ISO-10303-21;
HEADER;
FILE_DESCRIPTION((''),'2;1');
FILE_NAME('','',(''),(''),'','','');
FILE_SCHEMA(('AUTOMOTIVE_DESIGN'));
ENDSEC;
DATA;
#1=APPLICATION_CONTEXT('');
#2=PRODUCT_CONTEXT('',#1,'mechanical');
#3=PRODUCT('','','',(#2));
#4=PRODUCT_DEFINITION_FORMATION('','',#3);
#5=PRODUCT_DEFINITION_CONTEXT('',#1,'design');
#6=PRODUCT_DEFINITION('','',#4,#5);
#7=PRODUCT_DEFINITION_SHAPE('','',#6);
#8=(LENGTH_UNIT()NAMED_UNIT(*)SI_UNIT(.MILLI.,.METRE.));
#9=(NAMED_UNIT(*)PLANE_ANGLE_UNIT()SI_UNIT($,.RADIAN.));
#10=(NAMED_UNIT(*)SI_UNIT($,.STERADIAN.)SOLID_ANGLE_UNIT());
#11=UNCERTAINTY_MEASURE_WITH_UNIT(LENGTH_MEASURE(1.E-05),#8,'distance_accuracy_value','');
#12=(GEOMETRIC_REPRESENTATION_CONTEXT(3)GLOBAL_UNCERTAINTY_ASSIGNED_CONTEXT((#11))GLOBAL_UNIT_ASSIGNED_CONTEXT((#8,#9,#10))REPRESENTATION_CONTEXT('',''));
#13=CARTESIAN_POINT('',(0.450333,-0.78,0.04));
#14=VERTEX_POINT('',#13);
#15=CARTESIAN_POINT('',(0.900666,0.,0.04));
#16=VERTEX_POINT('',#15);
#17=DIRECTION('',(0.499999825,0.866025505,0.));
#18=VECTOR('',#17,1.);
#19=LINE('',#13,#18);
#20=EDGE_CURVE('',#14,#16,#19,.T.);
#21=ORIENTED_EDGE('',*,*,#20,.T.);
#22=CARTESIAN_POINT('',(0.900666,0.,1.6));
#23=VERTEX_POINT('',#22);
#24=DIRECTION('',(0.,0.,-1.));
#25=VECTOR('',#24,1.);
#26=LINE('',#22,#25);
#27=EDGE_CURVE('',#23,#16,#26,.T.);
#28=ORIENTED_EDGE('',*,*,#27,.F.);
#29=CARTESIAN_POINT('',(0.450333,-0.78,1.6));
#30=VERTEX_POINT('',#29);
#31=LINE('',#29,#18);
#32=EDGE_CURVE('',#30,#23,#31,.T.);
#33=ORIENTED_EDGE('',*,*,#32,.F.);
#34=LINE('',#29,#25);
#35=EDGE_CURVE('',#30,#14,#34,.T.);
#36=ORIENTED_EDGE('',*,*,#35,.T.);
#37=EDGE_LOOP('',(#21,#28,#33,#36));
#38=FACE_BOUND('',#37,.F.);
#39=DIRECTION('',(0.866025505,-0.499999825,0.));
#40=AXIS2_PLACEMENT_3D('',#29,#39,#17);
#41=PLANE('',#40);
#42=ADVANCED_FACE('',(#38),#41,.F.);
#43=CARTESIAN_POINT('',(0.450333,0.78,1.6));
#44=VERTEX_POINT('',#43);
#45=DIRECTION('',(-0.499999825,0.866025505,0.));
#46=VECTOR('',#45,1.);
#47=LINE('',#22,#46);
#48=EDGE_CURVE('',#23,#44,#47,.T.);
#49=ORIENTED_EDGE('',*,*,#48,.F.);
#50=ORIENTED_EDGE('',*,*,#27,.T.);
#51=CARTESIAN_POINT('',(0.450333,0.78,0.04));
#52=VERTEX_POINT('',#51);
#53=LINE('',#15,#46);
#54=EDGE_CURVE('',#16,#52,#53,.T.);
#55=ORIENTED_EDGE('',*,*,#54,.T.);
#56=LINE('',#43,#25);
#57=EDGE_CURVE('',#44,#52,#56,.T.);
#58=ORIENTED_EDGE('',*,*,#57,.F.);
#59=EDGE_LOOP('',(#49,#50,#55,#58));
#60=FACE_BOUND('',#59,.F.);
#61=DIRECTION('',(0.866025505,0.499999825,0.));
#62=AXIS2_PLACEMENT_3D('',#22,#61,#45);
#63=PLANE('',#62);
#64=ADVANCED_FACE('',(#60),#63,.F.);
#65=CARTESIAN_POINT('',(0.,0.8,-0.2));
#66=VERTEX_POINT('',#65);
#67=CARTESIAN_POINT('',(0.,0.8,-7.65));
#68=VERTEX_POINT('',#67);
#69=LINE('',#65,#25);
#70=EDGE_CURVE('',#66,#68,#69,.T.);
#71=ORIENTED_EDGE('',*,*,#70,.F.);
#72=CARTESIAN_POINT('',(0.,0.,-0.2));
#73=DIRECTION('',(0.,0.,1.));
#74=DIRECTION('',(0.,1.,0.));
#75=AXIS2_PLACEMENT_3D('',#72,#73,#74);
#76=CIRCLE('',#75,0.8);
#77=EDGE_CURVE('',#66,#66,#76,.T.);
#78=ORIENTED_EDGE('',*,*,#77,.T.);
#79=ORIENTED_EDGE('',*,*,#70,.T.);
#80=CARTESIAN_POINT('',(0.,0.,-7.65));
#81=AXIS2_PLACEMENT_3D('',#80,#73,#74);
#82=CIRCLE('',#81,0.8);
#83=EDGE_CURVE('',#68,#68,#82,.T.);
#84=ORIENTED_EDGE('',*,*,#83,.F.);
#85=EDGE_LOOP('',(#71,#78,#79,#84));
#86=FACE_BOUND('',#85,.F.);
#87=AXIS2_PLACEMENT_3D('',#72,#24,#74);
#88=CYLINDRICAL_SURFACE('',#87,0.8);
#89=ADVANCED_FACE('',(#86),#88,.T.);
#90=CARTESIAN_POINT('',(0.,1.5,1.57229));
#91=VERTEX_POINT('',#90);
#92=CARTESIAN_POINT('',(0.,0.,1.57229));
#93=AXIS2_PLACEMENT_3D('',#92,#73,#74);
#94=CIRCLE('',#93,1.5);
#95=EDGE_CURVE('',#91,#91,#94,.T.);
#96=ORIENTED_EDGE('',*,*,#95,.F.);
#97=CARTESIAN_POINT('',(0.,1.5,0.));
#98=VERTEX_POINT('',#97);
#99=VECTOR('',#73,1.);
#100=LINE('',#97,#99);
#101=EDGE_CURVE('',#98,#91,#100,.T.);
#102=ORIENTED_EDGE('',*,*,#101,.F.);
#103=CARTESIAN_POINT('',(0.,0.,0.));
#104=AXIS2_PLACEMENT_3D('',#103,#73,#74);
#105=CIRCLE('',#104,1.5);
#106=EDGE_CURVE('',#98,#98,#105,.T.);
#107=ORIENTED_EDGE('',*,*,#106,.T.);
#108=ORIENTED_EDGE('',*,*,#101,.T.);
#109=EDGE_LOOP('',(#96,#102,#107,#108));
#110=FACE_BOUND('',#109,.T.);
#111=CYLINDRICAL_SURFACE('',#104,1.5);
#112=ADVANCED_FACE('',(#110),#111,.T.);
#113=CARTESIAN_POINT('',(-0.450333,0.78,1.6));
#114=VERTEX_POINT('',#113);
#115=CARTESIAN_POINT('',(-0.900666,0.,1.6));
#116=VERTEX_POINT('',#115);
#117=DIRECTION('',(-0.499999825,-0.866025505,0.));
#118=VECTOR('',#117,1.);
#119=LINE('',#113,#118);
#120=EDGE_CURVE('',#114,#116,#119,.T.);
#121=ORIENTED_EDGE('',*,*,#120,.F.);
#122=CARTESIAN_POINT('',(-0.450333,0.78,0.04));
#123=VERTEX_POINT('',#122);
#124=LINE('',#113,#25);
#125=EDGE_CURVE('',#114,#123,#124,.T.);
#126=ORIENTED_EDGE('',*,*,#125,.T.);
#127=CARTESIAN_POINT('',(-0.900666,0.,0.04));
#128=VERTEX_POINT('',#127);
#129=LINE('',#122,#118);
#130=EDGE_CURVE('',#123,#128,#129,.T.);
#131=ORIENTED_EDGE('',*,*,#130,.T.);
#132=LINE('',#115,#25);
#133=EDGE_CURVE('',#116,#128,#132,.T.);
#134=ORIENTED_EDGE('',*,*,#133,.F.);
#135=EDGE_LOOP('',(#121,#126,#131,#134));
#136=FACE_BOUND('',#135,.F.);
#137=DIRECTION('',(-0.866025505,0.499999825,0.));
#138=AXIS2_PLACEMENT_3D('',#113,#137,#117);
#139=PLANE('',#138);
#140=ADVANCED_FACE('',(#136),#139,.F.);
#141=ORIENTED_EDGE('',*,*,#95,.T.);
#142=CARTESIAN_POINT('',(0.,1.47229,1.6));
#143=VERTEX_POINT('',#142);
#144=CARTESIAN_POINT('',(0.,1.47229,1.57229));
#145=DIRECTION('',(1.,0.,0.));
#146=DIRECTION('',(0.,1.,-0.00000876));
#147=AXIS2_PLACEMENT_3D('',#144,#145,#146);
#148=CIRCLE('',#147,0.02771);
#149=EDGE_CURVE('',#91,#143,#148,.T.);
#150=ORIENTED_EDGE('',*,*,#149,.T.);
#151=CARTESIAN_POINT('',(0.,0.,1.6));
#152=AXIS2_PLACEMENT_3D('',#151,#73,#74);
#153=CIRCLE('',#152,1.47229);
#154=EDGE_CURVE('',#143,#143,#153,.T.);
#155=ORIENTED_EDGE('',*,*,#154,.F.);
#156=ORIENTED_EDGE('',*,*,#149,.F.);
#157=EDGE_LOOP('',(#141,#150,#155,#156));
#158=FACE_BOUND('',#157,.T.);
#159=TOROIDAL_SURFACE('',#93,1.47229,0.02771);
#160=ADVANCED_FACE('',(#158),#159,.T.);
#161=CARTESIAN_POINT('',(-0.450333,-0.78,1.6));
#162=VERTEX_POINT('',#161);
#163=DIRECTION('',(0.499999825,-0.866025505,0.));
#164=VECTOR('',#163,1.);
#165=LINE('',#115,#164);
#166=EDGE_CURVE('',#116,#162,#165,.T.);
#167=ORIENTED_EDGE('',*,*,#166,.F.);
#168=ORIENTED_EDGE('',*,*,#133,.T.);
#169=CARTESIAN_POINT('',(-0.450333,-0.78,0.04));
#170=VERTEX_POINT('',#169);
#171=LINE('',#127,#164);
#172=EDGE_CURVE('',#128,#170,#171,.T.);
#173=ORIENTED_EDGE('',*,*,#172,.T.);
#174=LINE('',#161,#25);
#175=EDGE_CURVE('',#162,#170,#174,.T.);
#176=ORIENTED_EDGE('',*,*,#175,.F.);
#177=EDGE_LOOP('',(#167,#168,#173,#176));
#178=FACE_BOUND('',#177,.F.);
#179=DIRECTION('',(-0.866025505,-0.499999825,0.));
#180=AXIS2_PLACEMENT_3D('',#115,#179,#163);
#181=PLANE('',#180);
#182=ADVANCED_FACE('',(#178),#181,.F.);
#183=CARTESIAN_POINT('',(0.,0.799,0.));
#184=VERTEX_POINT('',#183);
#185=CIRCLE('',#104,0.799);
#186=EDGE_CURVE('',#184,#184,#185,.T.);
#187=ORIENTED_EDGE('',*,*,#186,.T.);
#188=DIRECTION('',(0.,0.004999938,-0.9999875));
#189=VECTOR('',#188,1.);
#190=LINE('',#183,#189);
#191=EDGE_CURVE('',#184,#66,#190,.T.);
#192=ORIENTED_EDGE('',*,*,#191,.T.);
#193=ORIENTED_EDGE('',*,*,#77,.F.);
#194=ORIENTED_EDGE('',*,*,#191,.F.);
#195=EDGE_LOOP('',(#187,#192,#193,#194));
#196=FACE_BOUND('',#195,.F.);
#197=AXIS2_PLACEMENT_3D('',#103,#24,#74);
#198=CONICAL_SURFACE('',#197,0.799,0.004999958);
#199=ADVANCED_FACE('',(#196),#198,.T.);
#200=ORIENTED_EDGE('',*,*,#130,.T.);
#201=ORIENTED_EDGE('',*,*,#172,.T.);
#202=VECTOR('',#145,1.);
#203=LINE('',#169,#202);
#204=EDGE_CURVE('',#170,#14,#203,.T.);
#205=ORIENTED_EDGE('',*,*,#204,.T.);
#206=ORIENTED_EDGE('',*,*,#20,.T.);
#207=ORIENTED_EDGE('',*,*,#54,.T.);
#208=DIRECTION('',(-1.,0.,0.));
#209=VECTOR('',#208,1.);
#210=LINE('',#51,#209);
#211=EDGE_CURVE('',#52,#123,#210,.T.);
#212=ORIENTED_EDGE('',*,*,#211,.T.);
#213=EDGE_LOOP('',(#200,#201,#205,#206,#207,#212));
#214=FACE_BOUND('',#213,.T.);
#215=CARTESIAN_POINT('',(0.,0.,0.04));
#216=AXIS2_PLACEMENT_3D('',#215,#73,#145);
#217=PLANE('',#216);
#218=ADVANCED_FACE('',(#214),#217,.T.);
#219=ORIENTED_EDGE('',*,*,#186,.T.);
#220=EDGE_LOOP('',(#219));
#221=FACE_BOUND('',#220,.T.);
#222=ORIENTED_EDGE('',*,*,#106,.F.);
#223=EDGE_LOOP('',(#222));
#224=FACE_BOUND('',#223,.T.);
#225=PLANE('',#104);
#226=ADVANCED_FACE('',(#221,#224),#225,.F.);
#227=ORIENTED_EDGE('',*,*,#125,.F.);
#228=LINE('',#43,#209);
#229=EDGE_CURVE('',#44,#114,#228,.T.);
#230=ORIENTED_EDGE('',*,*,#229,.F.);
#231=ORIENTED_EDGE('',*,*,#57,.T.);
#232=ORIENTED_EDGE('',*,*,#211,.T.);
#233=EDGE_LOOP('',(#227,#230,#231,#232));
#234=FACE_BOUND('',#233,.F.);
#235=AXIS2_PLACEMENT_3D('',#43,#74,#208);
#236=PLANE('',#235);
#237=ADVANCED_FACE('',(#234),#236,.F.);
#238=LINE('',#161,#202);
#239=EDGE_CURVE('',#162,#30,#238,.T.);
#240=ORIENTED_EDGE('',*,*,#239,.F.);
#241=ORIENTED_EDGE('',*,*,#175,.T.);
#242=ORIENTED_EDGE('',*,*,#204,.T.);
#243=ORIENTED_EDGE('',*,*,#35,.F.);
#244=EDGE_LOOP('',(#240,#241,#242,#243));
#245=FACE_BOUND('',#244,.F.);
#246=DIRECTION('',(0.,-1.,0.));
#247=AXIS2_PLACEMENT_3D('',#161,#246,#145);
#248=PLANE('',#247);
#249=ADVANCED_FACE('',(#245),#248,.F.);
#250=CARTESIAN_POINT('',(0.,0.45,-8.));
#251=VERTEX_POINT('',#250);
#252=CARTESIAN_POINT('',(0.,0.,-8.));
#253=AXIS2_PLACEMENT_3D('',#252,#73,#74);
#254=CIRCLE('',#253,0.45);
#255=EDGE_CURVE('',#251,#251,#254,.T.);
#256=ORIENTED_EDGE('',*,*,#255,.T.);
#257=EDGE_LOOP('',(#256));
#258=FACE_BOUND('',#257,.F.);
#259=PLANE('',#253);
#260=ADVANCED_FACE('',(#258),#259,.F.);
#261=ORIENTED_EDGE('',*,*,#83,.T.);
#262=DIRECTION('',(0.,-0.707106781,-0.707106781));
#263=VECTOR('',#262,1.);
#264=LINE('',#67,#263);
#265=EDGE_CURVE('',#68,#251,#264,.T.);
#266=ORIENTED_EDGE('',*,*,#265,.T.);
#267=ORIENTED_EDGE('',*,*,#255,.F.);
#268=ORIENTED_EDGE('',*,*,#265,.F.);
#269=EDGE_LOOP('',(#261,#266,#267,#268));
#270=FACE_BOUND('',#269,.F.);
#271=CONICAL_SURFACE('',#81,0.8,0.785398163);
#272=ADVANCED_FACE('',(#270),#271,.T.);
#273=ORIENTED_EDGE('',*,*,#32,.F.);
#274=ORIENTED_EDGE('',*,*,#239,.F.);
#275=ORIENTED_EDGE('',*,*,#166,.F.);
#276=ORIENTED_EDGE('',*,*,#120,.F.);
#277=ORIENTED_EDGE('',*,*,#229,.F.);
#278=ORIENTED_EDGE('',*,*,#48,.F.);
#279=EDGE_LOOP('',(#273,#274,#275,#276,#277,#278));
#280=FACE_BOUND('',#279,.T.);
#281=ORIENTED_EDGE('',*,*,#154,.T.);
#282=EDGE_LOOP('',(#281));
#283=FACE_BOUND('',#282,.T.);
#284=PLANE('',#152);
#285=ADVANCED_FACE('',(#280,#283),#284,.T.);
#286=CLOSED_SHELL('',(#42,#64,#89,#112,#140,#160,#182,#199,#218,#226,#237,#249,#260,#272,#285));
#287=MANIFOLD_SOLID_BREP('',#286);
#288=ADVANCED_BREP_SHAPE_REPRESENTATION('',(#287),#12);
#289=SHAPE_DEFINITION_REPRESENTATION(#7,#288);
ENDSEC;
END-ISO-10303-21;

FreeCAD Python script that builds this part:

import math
import FreeCAD as App
import Part
import Sketcher
Q = App.Units.Quantity

doc = App.newDocument("Part")
params = doc.addObject("Spreadsheet::Sheet", "Params")
for row, (alias, value) in enumerate([
    ("sketch1_height", "9.6 mm"),
    ("sketch1_width", "0.45 mm"),
    ("sketch1_height2", "7.45 mm"),
    ("revolution_angle", "360 deg"),
    ("pocket1_length", "1.56 mm"),
], start=1):
    params.set(f"A{row}", alias)
    params.set(f"B{row}", "=" + value)
    params.setAlias(f"B{row}", alias)

body = doc.addObject("PartDesign::Body", "Body")

sketch1 = body.newObject("Sketcher::SketchObject", "Sketch")
sketch1.AttachmentSupport = (doc.getObject("YZ_Plane"), [""])
sketch1.MapMode = "FlatFace"
sketch1.addGeometry([
    Part.LineSegment(App.Vector(0.799, 0, 0), App.Vector(1.5, 0, 0)),
    Part.LineSegment(App.Vector(1.5, 0, 0), App.Vector(1.5, 1.57229, 0)),
    Part.ArcOfCircle(Part.Circle(App.Vector(1.47229, 1.57229, 0), App.Vector(0, 0, 1), 0.02771), math.radians(-0.000502), math.radians(90.000502)),
    Part.LineSegment(App.Vector(1.47229, 1.6, 0), App.Vector(0, 1.6, 0)),
    Part.LineSegment(App.Vector(0, 1.6, 0), App.Vector(0, -8, 0)),
    Part.LineSegment(App.Vector(0, -8, 0), App.Vector(0.45, -8, 0)),
    Part.LineSegment(App.Vector(0.45, -8, 0), App.Vector(0.8, -7.65, 0)),
    Part.LineSegment(App.Vector(0.8, -7.65, 0), App.Vector(0.8, -0.2, 0)),
    Part.LineSegment(App.Vector(0.8, -0.2, 0), App.Vector(0.799, 0, 0)),
], False)
sketch1.addConstraint([
    Sketcher.Constraint("Coincident", 0, 2, 1, 1),
    Sketcher.Constraint("Coincident", 1, 2, 2, 1),
    Sketcher.Constraint("Coincident", 2, 2, 3, 1),
    Sketcher.Constraint("Coincident", 3, 2, 4, 1),
    Sketcher.Constraint("Coincident", 4, 2, 5, 1),
    Sketcher.Constraint("Coincident", 5, 2, 6, 1),
    Sketcher.Constraint("Coincident", 6, 2, 7, 1),
    Sketcher.Constraint("Coincident", 7, 2, 8, 1),
    Sketcher.Constraint("Coincident", 8, 2, 0, 1),
    Sketcher.Constraint("Horizontal", 0),
    Sketcher.Constraint("Vertical", 1),
    Sketcher.Constraint("Horizontal", 3),
    Sketcher.Constraint("Vertical", 4),
    Sketcher.Constraint("Horizontal", 5),
    Sketcher.Constraint("Vertical", 7),
    Sketcher.Constraint("PointOnObject", 0, 2, -1),
    Sketcher.Constraint("PointOnObject", 3, 2, -2),
    Sketcher.Constraint("Horizontal", 2, 3, 1, 2),
    Sketcher.Constraint("Angle", 6, Q("45 deg")),
    Sketcher.Constraint("DistanceY", 4, 2, 4, 1, Q("9.6 mm")),
    Sketcher.Constraint("DistanceY", 4, 2, -1, 1, Q("8 mm")),
    Sketcher.Constraint("DistanceX", 5, 1, 5, 2, Q("0.45 mm")),
    Sketcher.Constraint("DistanceY", 7, 1, 7, 2, Q("7.45 mm")),
    Sketcher.Constraint("DistanceX", -1, 1, 0, 2, Q("1.5 mm")),
    Sketcher.Constraint("DistanceX", -1, 1, 6, 2, Q("0.8 mm")),
    Sketcher.Constraint("DistanceX", 0, 1, 0, 2, Q("0.701 mm")),
    Sketcher.Constraint("Radius", 2, Q("0.02771 mm")),
    Sketcher.Constraint("DistanceX", 3, 2, 3, 1, Q("1.47229 mm")),
])
sketch1.setExpression("Constraints[19]", "Params.sketch1_height")
sketch1.setExpression("Constraints[21]", "Params.sketch1_width")
sketch1.setExpression("Constraints[22]", "Params.sketch1_height2")
revolution = body.newObject("PartDesign::Revolution", "Revolution")
revolution.Profile = sketch1
revolution.ReferenceAxis = (sketch1, ["V_Axis"])
revolution.setExpression("Angle", "Params.revolution_angle")

sketch2 = body.newObject("Sketcher::SketchObject", "Sketch001")
sketch2.AttachmentSupport = (doc.getObject("XY_Plane"), [""])
sketch2.MapMode = "FlatFace"
sketch2.AttachmentOffset = App.Placement(App.Vector(0, 0, 1.6), App.Rotation())
sketch2.addGeometry([
    Part.LineSegment(App.Vector(0.900666, 0, 0), App.Vector(0.450333, 0.78, 0)),
    Part.LineSegment(App.Vector(0.450333, 0.78, 0), App.Vector(-0.450333, 0.78, 0)),
    Part.LineSegment(App.Vector(-0.450333, 0.78, 0), App.Vector(-0.900666, 0, 0)),
    Part.LineSegment(App.Vector(-0.900666, 0, 0), App.Vector(-0.450333, -0.78, 0)),
    Part.LineSegment(App.Vector(-0.450333, -0.78, 0), App.Vector(0.450333, -0.78, 0)),
    Part.LineSegment(App.Vector(0.450333, -0.78, 0), App.Vector(0.900666, 0, 0)),
], False)
sketch2.addConstraint([
    Sketcher.Constraint("Coincident", 0, 2, 1, 1),
    Sketcher.Constraint("Coincident", 1, 2, 2, 1),
    Sketcher.Constraint("Coincident", 2, 2, 3, 1),
    Sketcher.Constraint("Coincident", 3, 2, 4, 1),
    Sketcher.Constraint("Coincident", 4, 2, 5, 1),
    Sketcher.Constraint("Coincident", 5, 2, 0, 1),
    Sketcher.Constraint("Horizontal", 1),
    Sketcher.Constraint("Horizontal", 4),
    Sketcher.Constraint("Symmetric", 0, 2, 3, 2, -1, 1),
    Sketcher.Constraint("Symmetric", 2, 2, 5, 2, -1, 1),
    Sketcher.Constraint("PointOnObject", 2, 2, -1),
    Sketcher.Constraint("Parallel", 2, 5),
    Sketcher.Constraint("Vertical", 1, 2, 3, 2),
    Sketcher.Constraint("Angle", 0, Q("119.999988 deg")),
    Sketcher.Constraint("DistanceY", -1, 1, 0, 2, Q("0.78 mm")),
    Sketcher.Constraint("DistanceX", 2, 2, 0, 2, Q("1.350999 mm")),
])
pocket1 = body.newObject("PartDesign::Pocket", "Pocket")
pocket1.Profile = sketch2
pocket1.setExpression("Length", "Params.pocket1_length")

doc.recompute()
